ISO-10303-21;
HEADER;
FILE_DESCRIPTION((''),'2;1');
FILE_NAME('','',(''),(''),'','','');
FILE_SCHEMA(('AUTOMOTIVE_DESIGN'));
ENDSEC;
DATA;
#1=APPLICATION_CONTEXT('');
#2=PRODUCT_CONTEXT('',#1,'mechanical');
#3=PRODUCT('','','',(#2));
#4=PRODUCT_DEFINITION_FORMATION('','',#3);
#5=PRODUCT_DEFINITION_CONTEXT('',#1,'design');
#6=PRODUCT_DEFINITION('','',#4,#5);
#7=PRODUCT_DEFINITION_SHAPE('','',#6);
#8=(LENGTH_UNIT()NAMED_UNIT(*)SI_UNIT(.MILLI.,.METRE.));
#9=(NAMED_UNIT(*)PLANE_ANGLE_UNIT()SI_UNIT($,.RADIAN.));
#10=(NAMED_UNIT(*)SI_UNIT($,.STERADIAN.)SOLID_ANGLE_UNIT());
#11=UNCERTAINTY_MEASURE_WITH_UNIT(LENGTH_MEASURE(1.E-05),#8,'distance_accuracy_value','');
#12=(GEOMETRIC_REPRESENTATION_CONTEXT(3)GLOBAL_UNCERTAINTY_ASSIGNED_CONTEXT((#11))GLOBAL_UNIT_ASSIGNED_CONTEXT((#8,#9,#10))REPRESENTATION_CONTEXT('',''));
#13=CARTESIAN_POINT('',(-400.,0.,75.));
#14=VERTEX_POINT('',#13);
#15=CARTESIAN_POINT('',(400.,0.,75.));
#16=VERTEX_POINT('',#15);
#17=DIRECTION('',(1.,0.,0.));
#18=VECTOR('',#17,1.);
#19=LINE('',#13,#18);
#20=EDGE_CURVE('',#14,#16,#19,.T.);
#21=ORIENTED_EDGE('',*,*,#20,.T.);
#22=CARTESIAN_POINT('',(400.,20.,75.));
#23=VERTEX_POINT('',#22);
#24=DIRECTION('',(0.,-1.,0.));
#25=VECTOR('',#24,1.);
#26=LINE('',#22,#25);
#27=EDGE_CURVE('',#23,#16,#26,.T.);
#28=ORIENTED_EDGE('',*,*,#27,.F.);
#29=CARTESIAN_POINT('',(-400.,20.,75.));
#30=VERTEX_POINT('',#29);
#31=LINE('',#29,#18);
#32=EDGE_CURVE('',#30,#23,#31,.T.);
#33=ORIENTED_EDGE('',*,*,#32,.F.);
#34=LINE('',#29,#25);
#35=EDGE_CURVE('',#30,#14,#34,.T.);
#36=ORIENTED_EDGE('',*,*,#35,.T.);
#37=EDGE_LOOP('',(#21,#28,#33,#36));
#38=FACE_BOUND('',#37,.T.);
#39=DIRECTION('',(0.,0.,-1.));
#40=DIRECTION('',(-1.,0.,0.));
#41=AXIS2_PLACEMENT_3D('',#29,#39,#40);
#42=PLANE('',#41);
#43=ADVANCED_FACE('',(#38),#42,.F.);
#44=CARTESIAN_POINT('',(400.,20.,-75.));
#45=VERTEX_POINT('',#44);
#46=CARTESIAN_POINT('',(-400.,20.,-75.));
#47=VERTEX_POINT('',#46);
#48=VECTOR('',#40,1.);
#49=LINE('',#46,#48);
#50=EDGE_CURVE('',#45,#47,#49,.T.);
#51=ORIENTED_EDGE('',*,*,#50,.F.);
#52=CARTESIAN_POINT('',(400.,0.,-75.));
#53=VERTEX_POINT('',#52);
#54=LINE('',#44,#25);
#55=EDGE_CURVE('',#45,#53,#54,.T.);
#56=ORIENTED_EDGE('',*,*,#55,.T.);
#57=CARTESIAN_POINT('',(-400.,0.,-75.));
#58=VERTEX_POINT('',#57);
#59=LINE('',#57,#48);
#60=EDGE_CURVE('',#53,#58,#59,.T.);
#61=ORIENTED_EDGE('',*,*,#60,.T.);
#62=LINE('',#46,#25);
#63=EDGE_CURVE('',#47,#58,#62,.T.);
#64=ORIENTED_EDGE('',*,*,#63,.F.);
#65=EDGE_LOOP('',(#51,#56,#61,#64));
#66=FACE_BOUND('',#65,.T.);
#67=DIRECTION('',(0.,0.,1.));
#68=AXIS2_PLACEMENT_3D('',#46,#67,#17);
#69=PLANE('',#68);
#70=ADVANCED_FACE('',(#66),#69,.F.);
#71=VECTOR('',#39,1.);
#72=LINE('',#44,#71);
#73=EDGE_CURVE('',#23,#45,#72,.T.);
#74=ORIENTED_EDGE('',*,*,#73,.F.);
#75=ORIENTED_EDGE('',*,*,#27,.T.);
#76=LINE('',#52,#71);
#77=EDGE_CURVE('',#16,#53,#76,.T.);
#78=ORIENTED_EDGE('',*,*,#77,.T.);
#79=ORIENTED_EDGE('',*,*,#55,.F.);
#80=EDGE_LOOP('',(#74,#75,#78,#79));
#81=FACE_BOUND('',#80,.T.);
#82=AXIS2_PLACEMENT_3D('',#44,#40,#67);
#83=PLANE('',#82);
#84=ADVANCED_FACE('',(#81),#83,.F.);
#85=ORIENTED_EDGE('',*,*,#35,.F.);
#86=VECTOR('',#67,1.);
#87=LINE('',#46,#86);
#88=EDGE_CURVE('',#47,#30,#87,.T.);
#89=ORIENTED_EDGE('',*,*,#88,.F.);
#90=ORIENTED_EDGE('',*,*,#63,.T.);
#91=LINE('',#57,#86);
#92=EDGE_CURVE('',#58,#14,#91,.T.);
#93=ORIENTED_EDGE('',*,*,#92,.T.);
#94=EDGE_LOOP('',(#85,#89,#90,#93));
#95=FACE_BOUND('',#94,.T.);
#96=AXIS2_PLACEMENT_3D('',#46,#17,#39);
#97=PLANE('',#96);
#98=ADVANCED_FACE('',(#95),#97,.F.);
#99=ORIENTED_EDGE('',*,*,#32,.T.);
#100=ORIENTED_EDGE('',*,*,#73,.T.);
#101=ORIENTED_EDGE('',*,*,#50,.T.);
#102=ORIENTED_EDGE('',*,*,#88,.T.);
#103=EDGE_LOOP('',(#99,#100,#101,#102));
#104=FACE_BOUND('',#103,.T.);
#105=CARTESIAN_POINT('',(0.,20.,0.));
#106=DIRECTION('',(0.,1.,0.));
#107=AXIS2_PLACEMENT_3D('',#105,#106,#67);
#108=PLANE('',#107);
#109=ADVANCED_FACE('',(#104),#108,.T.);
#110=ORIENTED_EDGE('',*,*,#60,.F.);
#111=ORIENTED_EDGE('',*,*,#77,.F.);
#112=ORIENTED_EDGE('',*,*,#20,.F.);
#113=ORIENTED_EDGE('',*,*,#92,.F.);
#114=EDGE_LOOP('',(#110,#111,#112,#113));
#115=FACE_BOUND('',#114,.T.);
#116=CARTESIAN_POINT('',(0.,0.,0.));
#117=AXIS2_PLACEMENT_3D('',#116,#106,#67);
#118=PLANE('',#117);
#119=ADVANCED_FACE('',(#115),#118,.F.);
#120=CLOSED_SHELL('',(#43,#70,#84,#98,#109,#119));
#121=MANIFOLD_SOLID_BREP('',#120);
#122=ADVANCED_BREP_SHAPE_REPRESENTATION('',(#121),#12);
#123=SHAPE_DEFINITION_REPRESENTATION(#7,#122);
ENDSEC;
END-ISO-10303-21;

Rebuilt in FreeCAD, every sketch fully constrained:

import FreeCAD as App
import Part
import Sketcher
Q = App.Units.Quantity

doc = App.newDocument("Part")
body = doc.addObject("PartDesign::Body", "Body")

# Sketch on XZ plane
sketch1 = body.newObject("Sketcher::SketchObject", "Sketch")
sketch1.AttachmentSupport = (doc.getObject("XZ_Plane"), [""])
sketch1.MapMode = "FlatFace"
sketch1.addGeometry([
    Part.LineSegment(App.Vector(-400, -75, 0), App.Vector(-400, 75, 0)),
    Part.LineSegment(App.Vector(-400, 75, 0), App.Vector(400, 75, 0)),
    Part.LineSegment(App.Vector(400, 75, 0), App.Vector(400, -75, 0)),
    Part.LineSegment(App.Vector(400, -75, 0), App.Vector(-400, -75, 0)),
], False)
sketch1.addConstraint([
    Sketcher.Constraint("Coincident", 0, 2, 1, 1),
    Sketcher.Constraint("Coincident", 1, 2, 2, 1),
    Sketcher.Constraint("Coincident", 2, 2, 3, 1),
    Sketcher.Constraint("Coincident", 3, 2, 0, 1),
    Sketcher.Constraint("Vertical", 0),
    Sketcher.Constraint("Horizontal", 1),
    Sketcher.Constraint("Vertical", 2),
    Sketcher.Constraint("Horizontal", 3),
    Sketcher.Constraint("Symmetric", 0, 2, 2, 2, -1, 1),
    Sketcher.Constraint("DistanceX", 1, 1, 1, 2, Q("800 mm")),
    Sketcher.Constraint("DistanceY", 0, 1, 0, 2, Q("150 mm")),
])
pad1 = body.newObject("PartDesign::Pad", "Pad")
pad1.Profile = sketch1
pad1.Length = 20
pad1.Reversed = True

doc.recompute()
